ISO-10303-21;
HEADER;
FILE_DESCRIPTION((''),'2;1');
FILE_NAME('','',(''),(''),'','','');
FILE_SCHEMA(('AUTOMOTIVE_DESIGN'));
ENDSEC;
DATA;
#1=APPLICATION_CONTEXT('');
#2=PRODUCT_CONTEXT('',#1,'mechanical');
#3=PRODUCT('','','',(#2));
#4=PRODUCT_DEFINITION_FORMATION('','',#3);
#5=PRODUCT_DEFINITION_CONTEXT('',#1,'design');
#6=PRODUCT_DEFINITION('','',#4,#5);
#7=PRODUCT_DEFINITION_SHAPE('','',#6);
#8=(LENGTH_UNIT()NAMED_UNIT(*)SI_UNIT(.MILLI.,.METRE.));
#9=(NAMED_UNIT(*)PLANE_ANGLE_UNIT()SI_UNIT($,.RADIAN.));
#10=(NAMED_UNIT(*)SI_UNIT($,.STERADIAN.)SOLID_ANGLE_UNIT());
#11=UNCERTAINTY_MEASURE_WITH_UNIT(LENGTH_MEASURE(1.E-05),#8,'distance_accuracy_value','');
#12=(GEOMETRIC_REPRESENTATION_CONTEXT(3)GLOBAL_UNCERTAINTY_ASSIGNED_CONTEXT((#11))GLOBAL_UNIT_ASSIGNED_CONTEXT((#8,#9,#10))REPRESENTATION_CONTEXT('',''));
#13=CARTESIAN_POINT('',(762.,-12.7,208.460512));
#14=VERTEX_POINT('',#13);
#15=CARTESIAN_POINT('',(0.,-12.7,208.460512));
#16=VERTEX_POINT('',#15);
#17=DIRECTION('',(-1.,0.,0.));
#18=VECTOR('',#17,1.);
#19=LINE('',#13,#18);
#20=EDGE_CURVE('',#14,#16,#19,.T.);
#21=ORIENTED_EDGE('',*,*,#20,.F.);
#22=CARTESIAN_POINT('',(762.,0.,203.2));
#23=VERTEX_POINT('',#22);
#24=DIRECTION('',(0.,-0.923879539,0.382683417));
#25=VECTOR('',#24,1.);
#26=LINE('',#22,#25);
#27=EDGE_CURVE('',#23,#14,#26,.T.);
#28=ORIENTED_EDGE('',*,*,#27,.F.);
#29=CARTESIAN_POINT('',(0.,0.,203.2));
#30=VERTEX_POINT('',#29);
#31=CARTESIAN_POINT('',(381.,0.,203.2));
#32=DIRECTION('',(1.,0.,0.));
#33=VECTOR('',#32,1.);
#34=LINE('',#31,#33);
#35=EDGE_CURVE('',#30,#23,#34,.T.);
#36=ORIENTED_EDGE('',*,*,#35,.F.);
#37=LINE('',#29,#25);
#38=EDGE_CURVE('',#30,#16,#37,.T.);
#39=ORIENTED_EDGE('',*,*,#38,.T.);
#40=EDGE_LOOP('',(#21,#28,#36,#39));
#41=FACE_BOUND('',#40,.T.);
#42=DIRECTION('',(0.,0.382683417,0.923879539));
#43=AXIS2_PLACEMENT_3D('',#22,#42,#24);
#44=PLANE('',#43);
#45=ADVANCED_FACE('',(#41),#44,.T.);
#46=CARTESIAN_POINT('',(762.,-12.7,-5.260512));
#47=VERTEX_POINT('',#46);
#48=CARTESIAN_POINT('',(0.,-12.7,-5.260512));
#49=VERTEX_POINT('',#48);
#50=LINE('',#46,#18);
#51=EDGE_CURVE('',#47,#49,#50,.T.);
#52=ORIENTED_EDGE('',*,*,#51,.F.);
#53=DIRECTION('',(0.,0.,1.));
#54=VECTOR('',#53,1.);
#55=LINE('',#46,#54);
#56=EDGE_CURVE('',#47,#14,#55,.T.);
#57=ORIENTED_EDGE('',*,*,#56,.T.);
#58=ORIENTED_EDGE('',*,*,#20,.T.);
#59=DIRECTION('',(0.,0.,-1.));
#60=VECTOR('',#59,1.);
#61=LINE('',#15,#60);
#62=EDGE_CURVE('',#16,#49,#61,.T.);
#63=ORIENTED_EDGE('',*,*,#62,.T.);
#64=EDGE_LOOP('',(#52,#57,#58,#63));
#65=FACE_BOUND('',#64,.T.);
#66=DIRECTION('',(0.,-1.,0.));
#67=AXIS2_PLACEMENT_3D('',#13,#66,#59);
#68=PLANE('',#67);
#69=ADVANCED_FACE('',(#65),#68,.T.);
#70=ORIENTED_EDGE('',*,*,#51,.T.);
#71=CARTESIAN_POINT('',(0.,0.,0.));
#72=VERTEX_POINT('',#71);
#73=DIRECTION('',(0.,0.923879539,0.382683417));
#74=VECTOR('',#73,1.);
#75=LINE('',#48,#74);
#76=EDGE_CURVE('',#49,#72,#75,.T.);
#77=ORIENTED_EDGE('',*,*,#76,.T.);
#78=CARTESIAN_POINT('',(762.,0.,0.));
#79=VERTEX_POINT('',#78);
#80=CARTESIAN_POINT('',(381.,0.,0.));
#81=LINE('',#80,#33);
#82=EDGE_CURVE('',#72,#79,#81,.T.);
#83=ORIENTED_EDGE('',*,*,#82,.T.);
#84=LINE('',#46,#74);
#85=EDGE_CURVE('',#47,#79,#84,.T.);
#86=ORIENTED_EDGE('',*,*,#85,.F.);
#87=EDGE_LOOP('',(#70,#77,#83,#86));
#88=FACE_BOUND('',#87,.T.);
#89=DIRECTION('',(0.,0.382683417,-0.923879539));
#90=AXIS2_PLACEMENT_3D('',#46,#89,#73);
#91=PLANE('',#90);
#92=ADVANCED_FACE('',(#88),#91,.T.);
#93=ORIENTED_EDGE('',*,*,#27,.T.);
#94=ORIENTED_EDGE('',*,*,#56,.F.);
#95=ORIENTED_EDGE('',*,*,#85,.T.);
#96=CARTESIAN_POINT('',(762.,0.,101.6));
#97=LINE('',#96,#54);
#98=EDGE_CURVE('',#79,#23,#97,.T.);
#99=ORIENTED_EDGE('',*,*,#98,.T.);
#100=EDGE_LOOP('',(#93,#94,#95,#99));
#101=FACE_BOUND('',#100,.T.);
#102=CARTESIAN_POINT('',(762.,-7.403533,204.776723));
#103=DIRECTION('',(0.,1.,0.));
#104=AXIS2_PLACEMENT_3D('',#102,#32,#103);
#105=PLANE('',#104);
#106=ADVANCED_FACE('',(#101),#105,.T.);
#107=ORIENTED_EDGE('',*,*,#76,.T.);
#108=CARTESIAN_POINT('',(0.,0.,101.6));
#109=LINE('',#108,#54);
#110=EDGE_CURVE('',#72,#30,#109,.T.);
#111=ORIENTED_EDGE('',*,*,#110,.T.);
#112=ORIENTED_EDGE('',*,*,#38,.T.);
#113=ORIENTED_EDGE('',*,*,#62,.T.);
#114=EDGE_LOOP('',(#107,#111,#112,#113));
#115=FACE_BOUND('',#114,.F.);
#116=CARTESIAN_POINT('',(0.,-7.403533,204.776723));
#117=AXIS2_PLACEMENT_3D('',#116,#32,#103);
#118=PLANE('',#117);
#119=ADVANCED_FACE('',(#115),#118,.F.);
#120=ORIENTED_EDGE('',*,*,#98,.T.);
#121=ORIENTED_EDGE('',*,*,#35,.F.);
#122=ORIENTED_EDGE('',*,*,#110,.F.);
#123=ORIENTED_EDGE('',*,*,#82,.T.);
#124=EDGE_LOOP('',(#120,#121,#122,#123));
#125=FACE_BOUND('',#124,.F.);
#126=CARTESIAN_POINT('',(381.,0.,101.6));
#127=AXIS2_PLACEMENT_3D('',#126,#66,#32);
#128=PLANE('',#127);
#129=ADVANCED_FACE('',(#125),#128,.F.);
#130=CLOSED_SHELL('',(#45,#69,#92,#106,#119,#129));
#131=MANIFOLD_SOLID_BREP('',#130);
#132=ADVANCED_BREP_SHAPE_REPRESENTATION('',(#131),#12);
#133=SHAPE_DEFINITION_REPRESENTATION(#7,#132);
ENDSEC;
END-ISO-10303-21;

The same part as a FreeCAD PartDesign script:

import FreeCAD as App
import Part
import Sketcher
from FreeCAD import Vector
Q = App.Units.Quantity

doc = App.newDocument("Part")
body = doc.addObject("PartDesign::Body", "Body")

# Sketch on XZ plane
sketch1 = doc.addObject("Sketcher::SketchObject", "Sketch")
body.addObject(sketch1)
sketch1.AttachmentSupport = (doc.XZ_Plane, [""])
sketch1.MapMode = "FlatFace"
sketch1.addGeometry([
    Part.LineSegment(Vector(0, 203, 0), Vector(0, 0, 0)),
    Part.LineSegment(Vector(0, 0, 0), Vector(762, 0, 0)),
    Part.LineSegment(Vector(762, 0, 0), Vector(762, 203, 0)),
    Part.LineSegment(Vector(762, 203, 0), Vector(0, 203, 0)),
], False)
sketch1.addConstraint([
    Sketcher.Constraint("Coincident", 0, 2, 1, 1),
    Sketcher.Constraint("Coincident", 1, 2, 2, 1),
    Sketcher.Constraint("Coincident", 2, 2, 3, 1),
    Sketcher.Constraint("Coincident", 3, 2, 0, 1),
    Sketcher.Constraint("Vertical", 0),
    Sketcher.Constraint("Horizontal", 1),
    Sketcher.Constraint("Vertical", 2),
    Sketcher.Constraint("Horizontal", 3),
    Sketcher.Constraint("Coincident", 0, 2, -1, 1),
    Sketcher.Constraint("DistanceX", 1, 1, 1, 2, Q("30 in")),
    Sketcher.Constraint("DistanceY", 0, 2, 0, 1, Q("8 in")),
])
pad1 = doc.addObject("PartDesign::Pad", "Pad")
body.addObject(pad1)
pad1.Profile = sketch1
pad1.Length = Q("0.5 in")

# Sketch on YZ plane
sketch2 = doc.addObject("Sketcher::SketchObject", "Sketch001")
body.addObject(sketch2)
sketch2.AttachmentSupport = (doc.YZ_Plane, [""])
sketch2.MapMode = "FlatFace"
sketch2.AttachmentOffset = App.Placement(Vector(0, 0, 30 * 25.4), App.Rotation())
sketch2.addGeometry([
    Part.LineSegment(Vector(-13, 203, 0), Vector(0, 203, 0)),  # 0
    Part.LineSegment(Vector(0, 203, 0), Vector(-13, 208, 0)),  # 1
    Part.LineSegment(Vector(-13, 208, 0), Vector(-13, 203, 0)),  # 2
    Part.LineSegment(Vector(-13, -5, 0), Vector(0, 0, 0)),  # 3
    Part.LineSegment(Vector(0, 0, 0), Vector(-13, 0, 0)),  # 4
    Part.LineSegment(Vector(-13, 0, 0), Vector(-13, -5, 0)),  # 5
], False)
sketch2.addConstraint([
    Sketcher.Constraint("Coincident", 0, 2, 1, 1),
    Sketcher.Constraint("Coincident", 1, 2, 2, 1),
    Sketcher.Constraint("Coincident", 2, 2, 0, 1),
    Sketcher.Constraint("Coincident", 3, 2, 4, 1),
    Sketcher.Constraint("Coincident", 4, 2, 5, 1),
    Sketcher.Constraint("Coincident", 5, 2, 3, 1),
    Sketcher.Constraint("Horizontal", 0),
    Sketcher.Constraint("Vertical", 2),
    Sketcher.Constraint("Horizontal", 4),
    Sketcher.Constraint("Vertical", 5),
    Sketcher.Constraint("Coincident", 3, 2, -1, 1),
    Sketcher.Constraint("PointOnObject", 0, 2, -2),
    Sketcher.Constraint("Vertical", 2, 2, 4, 2),
    Sketcher.Constraint("Equal", 2, 5),
    Sketcher.Constraint("DistanceX", 0, 1, 0, 2, Q("0.5 in")),
    Sketcher.Constraint("DistanceY", -1, 1, 0, 2, Q("8 in")),
    Sketcher.Constraint("Angle", 1, Q("157.500001 deg")),
])
pad2 = doc.addObject("PartDesign::Pad", "Pad001")
body.addObject(pad2)
pad2.Profile = sketch2
pad2.Type = "UpToLast"
pad2.Reversed = True

doc.recompute()
